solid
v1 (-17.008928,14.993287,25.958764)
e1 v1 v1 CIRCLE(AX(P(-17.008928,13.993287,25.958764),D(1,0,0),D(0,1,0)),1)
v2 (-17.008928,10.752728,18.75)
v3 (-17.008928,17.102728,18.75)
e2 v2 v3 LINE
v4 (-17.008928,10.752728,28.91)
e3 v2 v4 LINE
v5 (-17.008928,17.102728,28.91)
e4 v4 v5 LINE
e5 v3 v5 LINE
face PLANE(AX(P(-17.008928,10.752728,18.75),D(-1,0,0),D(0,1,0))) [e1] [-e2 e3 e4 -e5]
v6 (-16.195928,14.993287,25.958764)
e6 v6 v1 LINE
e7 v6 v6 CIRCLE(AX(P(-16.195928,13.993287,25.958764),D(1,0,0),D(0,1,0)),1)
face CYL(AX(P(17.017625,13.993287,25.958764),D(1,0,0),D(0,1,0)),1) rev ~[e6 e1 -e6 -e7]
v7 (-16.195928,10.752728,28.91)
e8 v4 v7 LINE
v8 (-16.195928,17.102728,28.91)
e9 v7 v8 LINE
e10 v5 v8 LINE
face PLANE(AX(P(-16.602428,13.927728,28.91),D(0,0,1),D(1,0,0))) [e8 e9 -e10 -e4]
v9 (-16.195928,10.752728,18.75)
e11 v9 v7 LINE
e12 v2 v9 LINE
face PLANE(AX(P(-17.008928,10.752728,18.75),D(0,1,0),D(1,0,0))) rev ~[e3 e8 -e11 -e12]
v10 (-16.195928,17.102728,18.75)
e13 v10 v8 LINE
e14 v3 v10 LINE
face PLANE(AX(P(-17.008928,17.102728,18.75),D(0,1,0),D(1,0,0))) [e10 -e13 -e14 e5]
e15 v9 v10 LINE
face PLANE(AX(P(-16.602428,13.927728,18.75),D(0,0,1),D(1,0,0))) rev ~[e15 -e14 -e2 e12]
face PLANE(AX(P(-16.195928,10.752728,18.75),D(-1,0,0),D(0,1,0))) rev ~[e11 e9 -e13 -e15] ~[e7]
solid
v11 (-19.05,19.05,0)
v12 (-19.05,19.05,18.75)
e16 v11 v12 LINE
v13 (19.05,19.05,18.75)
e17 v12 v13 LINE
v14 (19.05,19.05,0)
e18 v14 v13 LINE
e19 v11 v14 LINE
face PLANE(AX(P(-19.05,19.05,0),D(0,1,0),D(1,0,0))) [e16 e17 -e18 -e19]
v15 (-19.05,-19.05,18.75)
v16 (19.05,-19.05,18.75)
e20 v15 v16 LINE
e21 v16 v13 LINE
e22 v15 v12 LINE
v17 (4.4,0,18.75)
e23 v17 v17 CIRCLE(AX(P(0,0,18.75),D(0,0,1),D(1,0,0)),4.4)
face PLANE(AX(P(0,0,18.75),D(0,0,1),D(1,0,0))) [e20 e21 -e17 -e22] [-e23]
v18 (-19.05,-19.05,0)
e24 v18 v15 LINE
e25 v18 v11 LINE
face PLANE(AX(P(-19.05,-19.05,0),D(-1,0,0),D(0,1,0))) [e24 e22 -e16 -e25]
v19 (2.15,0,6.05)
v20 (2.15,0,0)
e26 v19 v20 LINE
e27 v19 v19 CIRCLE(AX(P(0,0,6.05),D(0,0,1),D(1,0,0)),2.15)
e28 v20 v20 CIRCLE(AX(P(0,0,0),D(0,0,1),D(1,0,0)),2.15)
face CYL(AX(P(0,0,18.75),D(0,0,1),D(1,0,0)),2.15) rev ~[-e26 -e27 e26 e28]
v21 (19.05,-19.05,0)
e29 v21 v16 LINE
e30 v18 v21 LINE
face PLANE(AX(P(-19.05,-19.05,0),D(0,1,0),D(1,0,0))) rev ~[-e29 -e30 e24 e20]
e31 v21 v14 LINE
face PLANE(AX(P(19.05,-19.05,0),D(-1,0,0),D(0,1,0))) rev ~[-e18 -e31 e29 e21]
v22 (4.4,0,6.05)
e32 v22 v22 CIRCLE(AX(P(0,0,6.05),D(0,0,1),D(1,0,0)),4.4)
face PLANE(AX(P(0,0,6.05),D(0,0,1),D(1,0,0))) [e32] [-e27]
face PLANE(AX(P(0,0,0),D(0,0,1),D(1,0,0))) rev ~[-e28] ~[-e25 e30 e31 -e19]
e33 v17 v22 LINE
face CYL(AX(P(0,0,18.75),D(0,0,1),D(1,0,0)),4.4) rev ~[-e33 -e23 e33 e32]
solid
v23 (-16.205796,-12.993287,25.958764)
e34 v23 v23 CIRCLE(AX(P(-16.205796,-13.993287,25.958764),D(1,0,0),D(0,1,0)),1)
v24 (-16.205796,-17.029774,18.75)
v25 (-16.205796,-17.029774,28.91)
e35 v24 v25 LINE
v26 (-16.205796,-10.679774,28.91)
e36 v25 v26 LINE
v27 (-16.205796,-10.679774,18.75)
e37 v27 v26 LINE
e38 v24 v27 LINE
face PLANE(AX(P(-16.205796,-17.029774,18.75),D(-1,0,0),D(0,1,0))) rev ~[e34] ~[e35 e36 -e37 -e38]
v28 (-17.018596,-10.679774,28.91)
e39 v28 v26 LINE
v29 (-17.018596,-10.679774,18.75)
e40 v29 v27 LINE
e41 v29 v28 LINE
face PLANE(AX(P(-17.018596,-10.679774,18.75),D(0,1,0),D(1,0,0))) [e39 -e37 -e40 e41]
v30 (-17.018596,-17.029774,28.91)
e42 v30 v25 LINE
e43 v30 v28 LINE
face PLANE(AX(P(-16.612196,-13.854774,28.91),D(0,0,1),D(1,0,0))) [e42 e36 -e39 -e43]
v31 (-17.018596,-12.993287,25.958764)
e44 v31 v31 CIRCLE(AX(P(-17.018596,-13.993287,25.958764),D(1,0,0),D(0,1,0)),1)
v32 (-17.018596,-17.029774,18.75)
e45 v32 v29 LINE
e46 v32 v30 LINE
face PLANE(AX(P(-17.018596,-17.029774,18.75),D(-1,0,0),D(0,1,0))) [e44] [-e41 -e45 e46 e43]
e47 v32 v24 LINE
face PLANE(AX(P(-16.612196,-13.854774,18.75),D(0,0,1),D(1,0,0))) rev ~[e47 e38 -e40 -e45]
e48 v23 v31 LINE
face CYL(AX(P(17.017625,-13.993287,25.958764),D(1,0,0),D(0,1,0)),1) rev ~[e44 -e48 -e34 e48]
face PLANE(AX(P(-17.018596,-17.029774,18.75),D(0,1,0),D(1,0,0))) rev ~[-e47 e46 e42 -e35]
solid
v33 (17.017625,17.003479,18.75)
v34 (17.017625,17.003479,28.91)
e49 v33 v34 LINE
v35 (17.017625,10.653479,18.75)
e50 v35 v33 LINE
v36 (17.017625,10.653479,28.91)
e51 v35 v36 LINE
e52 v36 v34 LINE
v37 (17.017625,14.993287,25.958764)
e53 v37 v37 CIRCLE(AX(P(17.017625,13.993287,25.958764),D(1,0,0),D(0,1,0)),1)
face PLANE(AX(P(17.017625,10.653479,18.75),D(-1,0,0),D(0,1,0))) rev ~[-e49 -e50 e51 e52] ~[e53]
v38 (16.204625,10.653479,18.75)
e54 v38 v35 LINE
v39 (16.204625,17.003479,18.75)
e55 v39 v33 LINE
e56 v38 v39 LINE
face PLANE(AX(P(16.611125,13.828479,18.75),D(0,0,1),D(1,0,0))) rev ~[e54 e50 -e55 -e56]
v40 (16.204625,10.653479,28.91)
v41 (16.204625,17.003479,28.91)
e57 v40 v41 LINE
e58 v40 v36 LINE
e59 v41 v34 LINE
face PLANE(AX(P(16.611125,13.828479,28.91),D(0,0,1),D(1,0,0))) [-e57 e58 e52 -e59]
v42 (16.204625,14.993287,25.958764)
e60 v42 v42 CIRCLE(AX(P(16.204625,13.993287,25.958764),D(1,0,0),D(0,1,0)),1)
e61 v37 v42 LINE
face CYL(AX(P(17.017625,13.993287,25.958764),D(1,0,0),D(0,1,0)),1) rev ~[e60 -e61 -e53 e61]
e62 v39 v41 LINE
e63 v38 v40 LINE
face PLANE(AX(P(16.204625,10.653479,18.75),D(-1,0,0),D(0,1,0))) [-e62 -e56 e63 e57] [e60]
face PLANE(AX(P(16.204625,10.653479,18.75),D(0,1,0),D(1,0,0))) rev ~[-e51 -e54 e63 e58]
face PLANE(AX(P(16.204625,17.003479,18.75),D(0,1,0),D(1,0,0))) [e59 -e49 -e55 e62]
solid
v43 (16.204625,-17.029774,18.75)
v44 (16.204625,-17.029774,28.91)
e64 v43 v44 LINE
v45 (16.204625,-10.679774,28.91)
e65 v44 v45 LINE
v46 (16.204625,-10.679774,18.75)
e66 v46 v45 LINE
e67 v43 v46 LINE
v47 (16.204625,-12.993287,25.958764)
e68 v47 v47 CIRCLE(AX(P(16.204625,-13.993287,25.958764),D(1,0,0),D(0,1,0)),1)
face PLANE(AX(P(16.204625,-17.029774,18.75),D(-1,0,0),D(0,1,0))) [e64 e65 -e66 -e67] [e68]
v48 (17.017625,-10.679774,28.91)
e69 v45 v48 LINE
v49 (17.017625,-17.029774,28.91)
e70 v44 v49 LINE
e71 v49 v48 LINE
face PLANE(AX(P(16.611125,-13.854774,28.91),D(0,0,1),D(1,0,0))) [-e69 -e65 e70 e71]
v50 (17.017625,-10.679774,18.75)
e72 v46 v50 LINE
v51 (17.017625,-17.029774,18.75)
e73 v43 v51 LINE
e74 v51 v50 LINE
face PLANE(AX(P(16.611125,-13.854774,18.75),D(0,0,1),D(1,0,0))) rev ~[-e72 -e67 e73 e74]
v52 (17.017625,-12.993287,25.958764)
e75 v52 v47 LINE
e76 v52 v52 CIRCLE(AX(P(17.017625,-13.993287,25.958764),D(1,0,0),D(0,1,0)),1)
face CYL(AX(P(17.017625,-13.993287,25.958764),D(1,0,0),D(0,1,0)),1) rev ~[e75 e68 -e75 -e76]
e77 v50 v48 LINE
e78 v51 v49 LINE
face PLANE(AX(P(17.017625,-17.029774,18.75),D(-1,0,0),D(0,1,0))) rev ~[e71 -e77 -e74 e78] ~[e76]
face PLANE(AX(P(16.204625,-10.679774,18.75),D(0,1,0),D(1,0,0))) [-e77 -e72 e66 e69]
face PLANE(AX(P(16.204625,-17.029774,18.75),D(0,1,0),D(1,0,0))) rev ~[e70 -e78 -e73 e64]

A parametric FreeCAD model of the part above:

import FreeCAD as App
import Part
import Sketcher

V = App.Vector
Q = App.Units.Quantity

doc = App.newDocument("Part")
body = doc.addObject("PartDesign::Body", "Body")

# Sketch on XY plane
sketch1 = doc.addObject("Sketcher::SketchObject", "Sketch")
body.addObject(sketch1)
sketch1.AttachmentSupport = (doc.XY_Plane, [""])
sketch1.MapMode = "FlatFace"
sketch1.addGeometry([
    Part.LineSegment(V(-19, 19, 0), V(-19, -19, 0)),
    Part.LineSegment(V(-19, -19, 0), V(19, -19, 0)),
    Part.LineSegment(V(19, -19, 0), V(19, 19, 0)),
    Part.LineSegment(V(19, 19, 0), V(-19, 19, 0)),
], False)
sketch1.addConstraint([
    Sketcher.Constraint("Coincident", 0, 2, 1, 1),
    Sketcher.Constraint("Coincident", 1, 2, 2, 1),
    Sketcher.Constraint("Coincident", 2, 2, 3, 1),
    Sketcher.Constraint("Coincident", 3, 2, 0, 1),
    Sketcher.Constraint("Vertical", 0),
    Sketcher.Constraint("Horizontal", 1),
    Sketcher.Constraint("Vertical", 2),
    Sketcher.Constraint("Horizontal", 3),
    Sketcher.Constraint("Symmetric", 0, 2, 2, 2, -1, 1),
    Sketcher.Constraint("Equal", 3, 0),
    Sketcher.Constraint("DistanceX", 1, 1, 1, 2, Q("1.5 in")),
])
pad1 = doc.addObject("PartDesign::Pad", "Pad")
body.addObject(pad1)
pad1.Profile = sketch1
pad1.Length = 18.75

# Sketch on XY plane
sketch2 = doc.addObject("Sketcher::SketchObject", "Sketch001")
body.addObject(sketch2)
sketch2.AttachmentSupport = (doc.XY_Plane, [""])
sketch2.MapMode = "FlatFace"
sketch2.AttachmentOffset = App.Placement(V(0, 0, 18.75), App.Rotation())
sketch2.addGeometry(Part.Circle(V(0, 0, 0), V(0, 0, 1), 2.1), False)
sketch2.addConstraint([
    Sketcher.Constraint("Coincident", 0, 3, -1, 1),
    Sketcher.Constraint("Diameter", 0, 4.3),
])
pocket1 = doc.addObject("PartDesign::Pocket", "Pocket")
body.addObject(pocket1)
pocket1.Profile = sketch2
pocket1.Length = 18.75

# Sketch on XY plane
sketch3 = doc.addObject("Sketcher::SketchObject", "Sketch002")
body.addObject(sketch3)
sketch3.AttachmentSupport = (doc.XY_Plane, [""])
sketch3.MapMode = "FlatFace"
sketch3.AttachmentOffset = App.Placement(V(0, 0, 18.75), App.Rotation())
sketch3.addGeometry([
    Part.Circle(V(0, 0, 0), V(0, 0, 1), 4.4),
    Part.Circle(V(0, 0, 0), V(0, 0, 1), 2.1),
], False)
sketch3.addConstraint([
    Sketcher.Constraint("Coincident", 0, 3, -1, 1),
    Sketcher.Constraint("Coincident", 1, 3, -1, 1),
    Sketcher.Constraint("Diameter", 0, 8.8),
    Sketcher.Constraint("Diameter", 1, 4.3),
])
pocket2 = doc.addObject("PartDesign::Pocket", "Pocket001")
body.addObject(pocket2)
pocket2.Profile = sketch3
pocket2.Length = Q("0.5 in")
body2 = doc.addObject("PartDesign::Body", "Body001")

# Sketch on XY plane
sketch4 = doc.addObject("Sketcher::SketchObject", "Sketch003")
body2.addObject(sketch4)
sketch4.AttachmentSupport = (doc.getObject("XY_Plane001"), [""])
sketch4.MapMode = "FlatFace"
sketch4.AttachmentOffset = App.Placement(V(0, 0, 18.75), App.Rotation())
sketch4.addGeometry([
    Part.LineSegment(V(-17, -10.7, 0), V(-17, -17, 0)),
    Part.LineSegment(V(-17, -17, 0), V(-16.2, -17, 0)),
    Part.LineSegment(V(-16.2, -17, 0), V(-16.2, -10.7, 0)),
    Part.LineSegment(V(-16.2, -10.7, 0), V(-17, -10.7, 0)),
], False)
sketch4.addConstraint([
    Sketcher.Constraint("Coincident", 0, 2, 1, 1),
    Sketcher.Constraint("Coincident", 1, 2, 2, 1),
    Sketcher.Constraint("Coincident", 2, 2, 3, 1),
    Sketcher.Constraint("Coincident", 3, 2, 0, 1),
    Sketcher.Constraint("Vertical", 0),
    Sketcher.Constraint("Horizontal", 1),
    Sketcher.Constraint("Vertical", 2),
    Sketcher.Constraint("Horizontal", 3),
    Sketcher.Constraint("DistanceY", 0, 2, 0, 1, Q("0.25 in")),
    Sketcher.Constraint("DistanceX", 1, 1, 1, 2, Q("0.032 in")),
    Sketcher.Constraint("DistanceX", 0, 2, -1, 1, 17.018596),
    Sketcher.Constraint("DistanceY", 0, 2, -1, 1, 17.029774),
])
pad2 = doc.addObject("PartDesign::Pad", "Pad001")
body2.addObject(pad2)
pad2.Profile = sketch4
pad2.Length = Q("0.4 in")
body3 = doc.addObject("PartDesign::Body", "Body002")

# Sketch on XY plane
sketch5 = doc.addObject("Sketcher::SketchObject", "Sketch004")
body3.addObject(sketch5)
sketch5.AttachmentSupport = (doc.getObject("XY_Plane002"), [""])
sketch5.MapMode = "FlatFace"
sketch5.AttachmentOffset = App.Placement(V(0, 0, 18.75), App.Rotation())
sketch5.addGeometry([
    Part.LineSegment(V(16.2, -10.7, 0), V(16.2, -17, 0)),
    Part.LineSegment(V(16.2, -17, 0), V(17, -17, 0)),
    Part.LineSegment(V(17, -17, 0), V(17, -10.7, 0)),
    Part.LineSegment(V(17, -10.7, 0), V(16.2, -10.7, 0)),
], False)
sketch5.addConstraint([
    Sketcher.Constraint("Coincident", 0, 2, 1, 1),
    Sketcher.Constraint("Coincident", 1, 2, 2, 1),
    Sketcher.Constraint("Coincident", 2, 2, 3, 1),
    Sketcher.Constraint("Coincident", 3, 2, 0, 1),
    Sketcher.Constraint("Vertical", 0),
    Sketcher.Constraint("Horizontal", 1),
    Sketcher.Constraint("Vertical", 2),
    Sketcher.Constraint("Horizontal", 3),
    Sketcher.Constraint("DistanceY", 0, 2, 0, 1, Q("0.25 in")),
    Sketcher.Constraint("DistanceX", 1, 1, 1, 2, 0.813),
    Sketcher.Constraint("DistanceX", -1, 1, 0, 2, 16.204625),
    Sketcher.Constraint("DistanceY", 0, 2, -1, 1, 17.029774),
])
pad3 = doc.addObject("PartDesign::Pad", "Pad002")
body3.addObject(pad3)
pad3.Profile = sketch5
pad3.Length = Q("0.4 in")
body4 = doc.addObject("PartDesign::Body", "Body003")

# Sketch on XY plane
sketch6 = doc.addObject("Sketcher::SketchObject", "Sketch005")
body4.addObject(sketch6)
sketch6.AttachmentSupport = (doc.getObject("XY_Plane003"), [""])
sketch6.MapMode = "FlatFace"
sketch6.AttachmentOffset = App.Placement(V(0, 0, 18.75), App.Rotation())
sketch6.addGeometry([
    Part.LineSegment(V(16.2, 17, 0), V(16.2, 10.7, 0)),
    Part.LineSegment(V(16.2, 10.7, 0), V(17, 10.7, 0)),
    Part.LineSegment(V(17, 10.7, 0), V(17, 17, 0)),
    Part.LineSegment(V(17, 17, 0), V(16.2, 17, 0)),
], False)
sketch6.addConstraint([
    Sketcher.Constraint("Coincident", 0, 2, 1, 1),
    Sketcher.Constraint("Coincident", 1, 2, 2, 1),
    Sketcher.Constraint("Coincident", 2, 2, 3, 1),
    Sketcher.Constraint("Coincident", 3, 2, 0, 1),
    Sketcher.Constraint("Vertical", 0),
    Sketcher.Constraint("Horizontal", 1),
    Sketcher.Constraint("Vertical", 2),
    Sketcher.Constraint("Horizontal", 3),
    Sketcher.Constraint("DistanceY", 0, 2, 0, 1, Q("0.25 in")),
    Sketcher.Constraint("DistanceX", 1, 1, 1, 2, 0.813),
    Sketcher.Constraint("DistanceY", -1, 1, 0, 2, 10.653479),
    Sketcher.Constraint("DistanceX", -1, 1, 0, 2, 16.204625),
])
pad4 = doc.addObject("PartDesign::Pad", "Pad003")
body4.addObject(pad4)
pad4.Profile = sketch6
pad4.Length = Q("0.4 in")
body5 = doc.addObject("PartDesign::Body", "Body004")

# Sketch on XY plane
sketch7 = doc.addObject("Sketcher::SketchObject", "Sketch006")
body5.addObject(sketch7)
sketch7.AttachmentSupport = (doc.getObject("XY_Plane004"), [""])
sketch7.MapMode = "FlatFace"
sketch7.AttachmentOffset = App.Placement(V(0, 0, 18.75), App.Rotation())
sketch7.addGeometry([
    Part.LineSegment(V(-16.2, 16.5, 0), V(-16.2, 10.2, 0)),
    Part.LineSegment(V(-16.2, 10.2, 0), V(-15.4, 10.2, 0)),
    Part.LineSegment(V(-15.4, 10.2, 0), V(-15.4, 16.5, 0)),
    Part.LineSegment(V(-15.4, 16.5, 0), V(-16.2, 16.5, 0)),
], False)
sketch7.addConstraint([
    Sketcher.Constraint("Coincident", 0, 2, 1, 1),
    Sketcher.Constraint("Coincident", 1, 2, 2, 1),
    Sketcher.Constraint("Coincident", 2, 2, 3, 1),
    Sketcher.Constraint("Coincident", 3, 2, 0, 1),
    Sketcher.Constraint("Vertical", 0),
    Sketcher.Constraint("Horizontal", 1),
    Sketcher.Constraint("Vertical", 2),
    Sketcher.Constraint("Horizontal", 3),
    Sketcher.Constraint("DistanceY", 0, 2, 0, 1, Q("0.25 in")),
    Sketcher.Constraint("DistanceX", 1, 1, 1, 2, 0.813),
    Sketcher.Constraint("DistanceY", -1, 1, 0, 2, 10.172728),
    Sketcher.Constraint("DistanceX", 0, 2, -1, 1, 16.176928),
])
pad5 = doc.addObject("PartDesign::Pad", "Pad004")
body5.addObject(pad5)
pad5.Profile = sketch7
pad5.Length = Q("0.4 in")
body6 = doc.addObject("PartDesign::Body", "Body005")
doc.recompute()

body5.Placement = App.Placement(V(-0.832, 0.58, 0), App.Rotation(V(0, 0, 1), 0))
boolean = doc.addObject("PartDesign::Boolean", "Boolean")
body6.addObject(boolean)
boolean.Type = "Fuse"
boolean.addObjects([body5])
body7 = doc.addObject("PartDesign::Body", "Body006")
body7.AllowCompound = True

# Sketch on YZ plane
sketch8 = doc.addObject("Sketcher::SketchObject", "Sketch007")
body7.addObject(sketch8)
sketch8.AttachmentSupport = (doc.getObject("YZ_Plane006"), [""])
sketch8.MapMode = "FlatFace"
sketch8.AttachmentOffset = App.Placement(V(0, 0, 17.017625), App.Rotation())
sketch8.addGeometry([
    Part.Circle(V(-14, 26, 0), V(0, 0, 1), 1),
    Part.Circle(V(14, 26, 0), V(0, 0, 1), 1),
], False)
sketch8.addConstraint([
    Sketcher.Constraint("Equal", 0, 1),
    Sketcher.Constraint("Symmetric", 0, 3, 1, 3, -2),
    Sketcher.Constraint("Diameter", 0, 2.0),
    Sketcher.Constraint("DistanceX", 0, 3, -1, 1, 13.993287),
    Sketcher.Constraint("DistanceY", -1, 1, 0, 3, 25.958764),
])
pad6 = doc.addObject("PartDesign::Pad", "Pad005")
body7.addObject(pad6)
pad6.Profile = sketch8
pad6.Length = 40
pad6.Reversed = True
doc.recompute()

body8 = doc.addObject("PartDesign::Body", "Body007")
body8.BaseFeature = body7
boolean2 = doc.addObject("PartDesign::Boolean", "Boolean001")
body2.addObject(boolean2)
boolean2.Type = "Cut"
boolean2.addObjects([body8])
doc.recompute()

body9 = doc.addObject("PartDesign::Body", "Body008")
body9.BaseFeature = body7
boolean3 = doc.addObject("PartDesign::Boolean", "Boolean002")
body3.addObject(boolean3)
boolean3.Type = "Cut"
boolean3.addObjects([body9])
doc.recompute()

body10 = doc.addObject("PartDesign::Body", "Body009")
body10.BaseFeature = body7
boolean4 = doc.addObject("PartDesign::Boolean", "Boolean003")
body4.addObject(boolean4)
boolean4.Type = "Cut"
boolean4.addObjects([body10])
doc.recompute()

boolean5 = doc.addObject("PartDesign::Boolean", "Boolean004")
body6.addObject(boolean5)
boolean5.Type = "Cut"
boolean5.addObjects([body7])

doc.recompute()
